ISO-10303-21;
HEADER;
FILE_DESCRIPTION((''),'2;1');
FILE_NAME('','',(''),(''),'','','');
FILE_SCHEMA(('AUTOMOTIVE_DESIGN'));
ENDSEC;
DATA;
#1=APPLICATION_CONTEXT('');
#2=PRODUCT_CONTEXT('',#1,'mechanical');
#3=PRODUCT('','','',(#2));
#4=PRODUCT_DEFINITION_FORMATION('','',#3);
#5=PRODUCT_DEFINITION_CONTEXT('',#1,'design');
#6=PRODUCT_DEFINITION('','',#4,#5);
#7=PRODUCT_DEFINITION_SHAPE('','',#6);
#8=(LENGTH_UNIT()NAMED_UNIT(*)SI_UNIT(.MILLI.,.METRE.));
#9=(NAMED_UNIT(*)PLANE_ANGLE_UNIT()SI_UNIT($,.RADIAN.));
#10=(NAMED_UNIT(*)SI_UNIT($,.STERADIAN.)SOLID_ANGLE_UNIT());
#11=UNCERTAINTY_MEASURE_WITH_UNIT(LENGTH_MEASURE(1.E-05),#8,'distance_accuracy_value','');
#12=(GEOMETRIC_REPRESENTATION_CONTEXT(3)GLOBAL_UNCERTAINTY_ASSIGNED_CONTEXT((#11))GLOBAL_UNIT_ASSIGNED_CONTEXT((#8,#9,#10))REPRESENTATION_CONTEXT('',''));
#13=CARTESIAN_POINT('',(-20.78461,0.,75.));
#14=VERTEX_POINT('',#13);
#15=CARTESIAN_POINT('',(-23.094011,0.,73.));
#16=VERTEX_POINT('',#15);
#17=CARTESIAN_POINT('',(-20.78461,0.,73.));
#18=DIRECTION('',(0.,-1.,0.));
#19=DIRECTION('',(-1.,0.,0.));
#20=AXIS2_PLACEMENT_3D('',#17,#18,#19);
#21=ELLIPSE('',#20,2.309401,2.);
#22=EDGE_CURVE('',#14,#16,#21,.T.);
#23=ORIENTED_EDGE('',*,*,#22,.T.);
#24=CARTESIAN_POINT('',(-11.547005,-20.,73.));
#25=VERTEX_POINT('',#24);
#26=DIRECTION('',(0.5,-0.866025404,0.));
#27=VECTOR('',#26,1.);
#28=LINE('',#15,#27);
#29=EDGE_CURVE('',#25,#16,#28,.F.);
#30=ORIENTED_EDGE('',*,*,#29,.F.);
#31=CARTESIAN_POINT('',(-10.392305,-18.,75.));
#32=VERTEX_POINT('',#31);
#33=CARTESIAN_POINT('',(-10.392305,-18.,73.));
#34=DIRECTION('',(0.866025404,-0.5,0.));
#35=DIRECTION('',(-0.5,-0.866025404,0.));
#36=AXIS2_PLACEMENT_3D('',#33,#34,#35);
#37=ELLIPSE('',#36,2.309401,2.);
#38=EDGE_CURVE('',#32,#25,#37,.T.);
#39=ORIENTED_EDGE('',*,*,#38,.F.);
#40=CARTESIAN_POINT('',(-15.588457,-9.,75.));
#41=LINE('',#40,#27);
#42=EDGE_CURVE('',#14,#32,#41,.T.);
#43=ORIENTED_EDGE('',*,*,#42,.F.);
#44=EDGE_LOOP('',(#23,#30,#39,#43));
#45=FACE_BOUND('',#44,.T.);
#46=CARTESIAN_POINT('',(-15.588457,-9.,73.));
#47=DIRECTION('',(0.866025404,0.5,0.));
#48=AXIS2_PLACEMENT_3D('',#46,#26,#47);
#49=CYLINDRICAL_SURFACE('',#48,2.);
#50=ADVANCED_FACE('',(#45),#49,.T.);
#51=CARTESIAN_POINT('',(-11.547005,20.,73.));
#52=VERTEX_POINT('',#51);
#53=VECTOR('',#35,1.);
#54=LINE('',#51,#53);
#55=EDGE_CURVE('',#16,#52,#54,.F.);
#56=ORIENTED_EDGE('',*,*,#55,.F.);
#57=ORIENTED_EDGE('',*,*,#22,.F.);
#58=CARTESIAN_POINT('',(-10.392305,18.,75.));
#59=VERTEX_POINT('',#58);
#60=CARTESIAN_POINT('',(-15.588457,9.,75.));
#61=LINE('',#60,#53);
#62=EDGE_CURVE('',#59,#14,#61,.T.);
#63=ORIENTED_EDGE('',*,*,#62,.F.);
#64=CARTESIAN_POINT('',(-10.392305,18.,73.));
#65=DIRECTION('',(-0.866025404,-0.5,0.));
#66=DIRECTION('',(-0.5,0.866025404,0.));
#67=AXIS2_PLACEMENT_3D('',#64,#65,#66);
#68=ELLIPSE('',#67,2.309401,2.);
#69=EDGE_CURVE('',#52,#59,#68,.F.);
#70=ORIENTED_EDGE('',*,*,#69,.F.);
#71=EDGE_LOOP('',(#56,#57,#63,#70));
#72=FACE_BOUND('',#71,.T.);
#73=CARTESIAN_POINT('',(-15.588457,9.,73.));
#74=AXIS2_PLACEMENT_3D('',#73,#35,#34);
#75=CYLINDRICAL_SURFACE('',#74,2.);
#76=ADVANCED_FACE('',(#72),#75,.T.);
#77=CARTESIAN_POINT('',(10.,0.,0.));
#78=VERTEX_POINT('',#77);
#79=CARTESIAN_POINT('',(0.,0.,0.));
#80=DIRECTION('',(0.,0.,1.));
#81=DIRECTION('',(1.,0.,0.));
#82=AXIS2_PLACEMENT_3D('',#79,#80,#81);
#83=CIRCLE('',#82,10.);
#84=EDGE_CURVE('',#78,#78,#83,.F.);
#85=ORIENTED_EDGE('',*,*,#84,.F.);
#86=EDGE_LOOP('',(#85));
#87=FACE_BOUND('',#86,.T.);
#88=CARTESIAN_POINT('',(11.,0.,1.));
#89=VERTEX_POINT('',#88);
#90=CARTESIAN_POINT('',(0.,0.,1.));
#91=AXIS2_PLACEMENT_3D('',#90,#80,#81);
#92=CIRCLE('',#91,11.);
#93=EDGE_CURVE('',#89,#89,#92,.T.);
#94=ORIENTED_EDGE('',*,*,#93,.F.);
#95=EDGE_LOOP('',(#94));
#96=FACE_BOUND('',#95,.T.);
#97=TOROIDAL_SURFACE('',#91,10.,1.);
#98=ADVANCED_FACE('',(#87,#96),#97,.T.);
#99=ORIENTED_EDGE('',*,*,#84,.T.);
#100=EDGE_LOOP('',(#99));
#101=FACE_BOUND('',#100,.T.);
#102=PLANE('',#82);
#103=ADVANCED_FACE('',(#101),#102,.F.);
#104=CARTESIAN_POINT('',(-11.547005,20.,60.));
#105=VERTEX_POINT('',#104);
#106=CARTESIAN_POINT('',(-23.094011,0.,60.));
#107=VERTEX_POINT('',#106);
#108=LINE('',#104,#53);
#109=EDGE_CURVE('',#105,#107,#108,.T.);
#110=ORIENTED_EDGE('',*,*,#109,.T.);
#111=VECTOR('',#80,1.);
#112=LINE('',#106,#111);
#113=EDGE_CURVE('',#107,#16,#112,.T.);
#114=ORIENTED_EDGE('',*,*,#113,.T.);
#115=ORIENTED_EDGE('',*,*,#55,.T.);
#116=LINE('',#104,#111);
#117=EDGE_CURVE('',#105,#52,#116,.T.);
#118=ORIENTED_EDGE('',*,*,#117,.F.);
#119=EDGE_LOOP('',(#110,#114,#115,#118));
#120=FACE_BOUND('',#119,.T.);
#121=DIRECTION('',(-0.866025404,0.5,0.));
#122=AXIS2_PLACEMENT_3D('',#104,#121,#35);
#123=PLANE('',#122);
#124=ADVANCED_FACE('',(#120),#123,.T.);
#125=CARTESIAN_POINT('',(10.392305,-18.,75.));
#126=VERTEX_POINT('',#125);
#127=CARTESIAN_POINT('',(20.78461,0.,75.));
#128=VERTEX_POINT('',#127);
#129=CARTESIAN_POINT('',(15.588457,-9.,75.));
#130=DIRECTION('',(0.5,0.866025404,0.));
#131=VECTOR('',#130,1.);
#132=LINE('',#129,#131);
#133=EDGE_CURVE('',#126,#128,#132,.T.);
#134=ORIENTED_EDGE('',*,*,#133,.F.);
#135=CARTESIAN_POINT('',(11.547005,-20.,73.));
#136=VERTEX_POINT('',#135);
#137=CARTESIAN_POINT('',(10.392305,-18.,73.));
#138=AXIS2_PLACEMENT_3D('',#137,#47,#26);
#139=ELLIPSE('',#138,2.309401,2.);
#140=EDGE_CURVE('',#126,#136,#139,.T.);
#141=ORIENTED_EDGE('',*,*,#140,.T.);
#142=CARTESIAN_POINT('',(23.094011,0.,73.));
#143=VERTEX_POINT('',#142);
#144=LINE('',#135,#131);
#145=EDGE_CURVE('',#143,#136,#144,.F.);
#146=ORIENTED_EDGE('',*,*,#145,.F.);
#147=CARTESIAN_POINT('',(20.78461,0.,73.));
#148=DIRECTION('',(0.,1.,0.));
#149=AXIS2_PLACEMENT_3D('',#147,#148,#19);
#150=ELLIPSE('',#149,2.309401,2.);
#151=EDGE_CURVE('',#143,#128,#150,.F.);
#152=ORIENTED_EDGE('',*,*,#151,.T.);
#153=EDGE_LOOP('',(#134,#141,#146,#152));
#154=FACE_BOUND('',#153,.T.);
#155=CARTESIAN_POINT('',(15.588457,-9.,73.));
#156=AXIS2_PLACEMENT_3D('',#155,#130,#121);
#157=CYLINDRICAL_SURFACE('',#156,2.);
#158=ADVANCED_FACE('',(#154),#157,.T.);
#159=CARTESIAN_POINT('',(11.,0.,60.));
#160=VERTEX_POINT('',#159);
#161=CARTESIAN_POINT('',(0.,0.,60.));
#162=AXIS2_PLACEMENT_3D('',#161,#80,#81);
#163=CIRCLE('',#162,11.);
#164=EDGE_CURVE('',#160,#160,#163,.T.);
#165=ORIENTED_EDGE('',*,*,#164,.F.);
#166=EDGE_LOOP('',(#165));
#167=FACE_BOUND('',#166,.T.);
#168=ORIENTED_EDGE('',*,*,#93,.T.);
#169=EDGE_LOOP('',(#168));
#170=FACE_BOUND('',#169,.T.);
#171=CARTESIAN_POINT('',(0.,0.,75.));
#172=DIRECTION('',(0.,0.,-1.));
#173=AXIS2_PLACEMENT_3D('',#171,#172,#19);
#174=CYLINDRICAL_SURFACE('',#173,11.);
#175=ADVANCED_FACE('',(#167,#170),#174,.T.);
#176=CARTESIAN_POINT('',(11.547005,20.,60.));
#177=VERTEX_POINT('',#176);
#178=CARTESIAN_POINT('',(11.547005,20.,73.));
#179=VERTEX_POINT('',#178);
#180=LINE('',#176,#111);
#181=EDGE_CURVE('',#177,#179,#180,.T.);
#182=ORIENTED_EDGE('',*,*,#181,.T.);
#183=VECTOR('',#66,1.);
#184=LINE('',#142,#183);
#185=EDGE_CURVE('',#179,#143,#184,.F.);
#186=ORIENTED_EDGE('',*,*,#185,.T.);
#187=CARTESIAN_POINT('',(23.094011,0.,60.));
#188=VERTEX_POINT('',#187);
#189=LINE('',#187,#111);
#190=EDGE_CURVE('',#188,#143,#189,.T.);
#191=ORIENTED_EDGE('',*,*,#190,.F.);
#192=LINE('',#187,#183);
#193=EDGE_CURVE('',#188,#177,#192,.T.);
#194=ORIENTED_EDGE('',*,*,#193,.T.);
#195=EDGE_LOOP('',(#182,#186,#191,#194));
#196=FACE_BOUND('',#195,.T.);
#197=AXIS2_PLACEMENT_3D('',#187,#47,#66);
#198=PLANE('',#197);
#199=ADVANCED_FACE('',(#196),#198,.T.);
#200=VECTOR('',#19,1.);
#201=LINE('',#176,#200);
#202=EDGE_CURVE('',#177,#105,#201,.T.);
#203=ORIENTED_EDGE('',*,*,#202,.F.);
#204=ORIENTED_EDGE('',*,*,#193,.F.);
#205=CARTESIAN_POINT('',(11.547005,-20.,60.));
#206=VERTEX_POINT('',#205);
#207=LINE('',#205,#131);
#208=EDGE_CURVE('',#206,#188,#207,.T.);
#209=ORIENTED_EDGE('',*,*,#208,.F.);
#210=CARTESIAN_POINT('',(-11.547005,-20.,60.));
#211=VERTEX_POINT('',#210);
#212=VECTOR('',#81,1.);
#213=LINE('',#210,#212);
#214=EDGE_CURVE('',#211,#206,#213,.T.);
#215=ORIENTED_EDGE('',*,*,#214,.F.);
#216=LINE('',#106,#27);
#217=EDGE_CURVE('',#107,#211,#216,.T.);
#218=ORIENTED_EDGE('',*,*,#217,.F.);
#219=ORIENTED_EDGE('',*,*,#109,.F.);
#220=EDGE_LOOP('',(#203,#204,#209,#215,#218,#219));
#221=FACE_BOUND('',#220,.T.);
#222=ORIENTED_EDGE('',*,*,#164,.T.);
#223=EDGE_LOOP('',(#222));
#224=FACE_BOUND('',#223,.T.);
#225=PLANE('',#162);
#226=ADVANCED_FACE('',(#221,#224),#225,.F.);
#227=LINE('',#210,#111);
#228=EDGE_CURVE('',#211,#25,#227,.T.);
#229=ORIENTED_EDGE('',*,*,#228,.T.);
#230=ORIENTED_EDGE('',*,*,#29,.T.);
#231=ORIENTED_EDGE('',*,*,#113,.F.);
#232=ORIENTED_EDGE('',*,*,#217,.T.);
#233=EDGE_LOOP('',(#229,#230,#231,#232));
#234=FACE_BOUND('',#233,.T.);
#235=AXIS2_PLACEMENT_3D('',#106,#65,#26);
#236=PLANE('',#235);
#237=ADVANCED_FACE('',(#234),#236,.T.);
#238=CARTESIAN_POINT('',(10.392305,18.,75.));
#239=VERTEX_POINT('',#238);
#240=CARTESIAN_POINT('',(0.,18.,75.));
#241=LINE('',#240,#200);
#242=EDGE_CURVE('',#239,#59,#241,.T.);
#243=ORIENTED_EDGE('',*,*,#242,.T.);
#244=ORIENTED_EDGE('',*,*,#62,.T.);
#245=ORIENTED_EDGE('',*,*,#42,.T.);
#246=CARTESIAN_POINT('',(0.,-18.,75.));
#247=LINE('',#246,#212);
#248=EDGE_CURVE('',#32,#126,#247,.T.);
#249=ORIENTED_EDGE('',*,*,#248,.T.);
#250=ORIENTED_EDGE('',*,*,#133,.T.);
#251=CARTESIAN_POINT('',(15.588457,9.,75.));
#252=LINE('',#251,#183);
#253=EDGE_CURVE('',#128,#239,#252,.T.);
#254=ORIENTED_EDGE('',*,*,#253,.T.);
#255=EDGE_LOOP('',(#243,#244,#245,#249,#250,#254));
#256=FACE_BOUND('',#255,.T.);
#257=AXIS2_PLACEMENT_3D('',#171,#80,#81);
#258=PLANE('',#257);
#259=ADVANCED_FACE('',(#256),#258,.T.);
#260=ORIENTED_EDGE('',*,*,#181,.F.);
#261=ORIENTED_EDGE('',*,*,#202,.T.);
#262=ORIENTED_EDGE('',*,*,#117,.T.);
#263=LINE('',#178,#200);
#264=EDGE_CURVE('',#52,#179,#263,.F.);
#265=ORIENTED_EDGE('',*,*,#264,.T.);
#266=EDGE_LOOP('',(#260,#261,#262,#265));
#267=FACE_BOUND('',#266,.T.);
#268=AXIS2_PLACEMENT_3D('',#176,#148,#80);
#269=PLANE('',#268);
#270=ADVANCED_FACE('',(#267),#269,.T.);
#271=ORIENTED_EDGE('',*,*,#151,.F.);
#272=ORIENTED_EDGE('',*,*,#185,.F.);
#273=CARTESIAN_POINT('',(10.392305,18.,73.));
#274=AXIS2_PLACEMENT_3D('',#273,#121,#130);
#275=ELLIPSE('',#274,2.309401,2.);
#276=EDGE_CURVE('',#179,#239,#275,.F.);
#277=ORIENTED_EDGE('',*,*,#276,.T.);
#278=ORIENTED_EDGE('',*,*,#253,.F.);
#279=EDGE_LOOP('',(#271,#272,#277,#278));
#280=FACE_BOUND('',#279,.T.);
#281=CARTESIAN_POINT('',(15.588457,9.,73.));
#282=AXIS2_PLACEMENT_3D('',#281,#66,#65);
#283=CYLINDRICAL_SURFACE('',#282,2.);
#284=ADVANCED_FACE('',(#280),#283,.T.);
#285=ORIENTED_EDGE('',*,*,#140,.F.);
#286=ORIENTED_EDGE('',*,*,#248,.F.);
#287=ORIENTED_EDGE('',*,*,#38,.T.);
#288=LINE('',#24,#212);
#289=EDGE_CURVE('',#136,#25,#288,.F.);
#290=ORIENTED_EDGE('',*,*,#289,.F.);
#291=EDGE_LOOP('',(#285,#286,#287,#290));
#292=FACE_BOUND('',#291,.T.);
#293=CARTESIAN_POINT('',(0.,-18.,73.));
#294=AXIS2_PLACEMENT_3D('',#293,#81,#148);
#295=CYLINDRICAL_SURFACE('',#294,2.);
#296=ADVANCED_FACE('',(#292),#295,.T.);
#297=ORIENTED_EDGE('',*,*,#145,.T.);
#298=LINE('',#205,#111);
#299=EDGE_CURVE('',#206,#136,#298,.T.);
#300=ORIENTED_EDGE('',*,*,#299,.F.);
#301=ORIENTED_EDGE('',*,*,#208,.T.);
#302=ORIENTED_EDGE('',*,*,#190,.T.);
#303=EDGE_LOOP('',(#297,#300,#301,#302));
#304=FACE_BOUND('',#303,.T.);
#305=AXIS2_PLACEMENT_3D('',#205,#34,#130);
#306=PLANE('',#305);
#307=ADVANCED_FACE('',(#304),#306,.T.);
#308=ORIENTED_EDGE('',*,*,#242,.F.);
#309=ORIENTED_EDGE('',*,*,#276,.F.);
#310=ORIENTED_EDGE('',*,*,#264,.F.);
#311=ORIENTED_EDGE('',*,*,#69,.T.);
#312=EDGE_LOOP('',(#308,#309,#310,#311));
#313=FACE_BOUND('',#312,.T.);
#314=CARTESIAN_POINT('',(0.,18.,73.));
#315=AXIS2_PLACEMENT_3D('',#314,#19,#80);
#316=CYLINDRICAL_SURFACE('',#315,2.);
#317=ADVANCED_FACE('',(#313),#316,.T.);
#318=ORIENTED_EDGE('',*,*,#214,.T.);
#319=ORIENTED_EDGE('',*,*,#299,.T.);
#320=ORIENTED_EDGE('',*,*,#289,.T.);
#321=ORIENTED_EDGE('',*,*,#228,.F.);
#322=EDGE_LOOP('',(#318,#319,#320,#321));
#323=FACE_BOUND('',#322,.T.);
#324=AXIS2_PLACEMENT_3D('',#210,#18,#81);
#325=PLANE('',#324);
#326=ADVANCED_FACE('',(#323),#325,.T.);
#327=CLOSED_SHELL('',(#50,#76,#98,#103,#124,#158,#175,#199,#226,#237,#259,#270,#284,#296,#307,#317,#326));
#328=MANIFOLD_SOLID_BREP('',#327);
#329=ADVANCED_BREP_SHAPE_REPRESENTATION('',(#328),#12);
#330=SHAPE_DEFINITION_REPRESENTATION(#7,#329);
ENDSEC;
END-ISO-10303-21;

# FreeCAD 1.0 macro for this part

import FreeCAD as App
import Part
import Sketcher
Q = App.Units.Quantity


def edges_at(feature, points):
    """Names of the edges that pass closest to the given points."""
    edges = feature.Shape.Edges
    near = lambda p: min(range(len(edges)), key=lambda i: edges[i].distToShape(Part.Vertex(*p))[0])
    return sorted({f"Edge{near(p) + 1}" for p in points})

doc = App.newDocument("Part")
body = doc.addObject("PartDesign::Body", "Body")

# Sketch on XY plane
sketch1 = doc.addObject("Sketcher::SketchObject", "Sketch")
body.addObject(sketch1)
sketch1.AttachmentSupport = (doc.XY_Plane, [""])
sketch1.MapMode = "FlatFace"
sketch1.addGeometry(Part.Circle(App.Vector(0, 0, 0), App.Vector(0, 0, 1), 11), False)
sketch1.addConstraint(Sketcher.Constraint("Coincident", 0, 3, -1, 1))
sketch1.addConstraint(Sketcher.Constraint("Diameter", 0, Q("22 mm")))
pad1 = doc.addObject("PartDesign::Pad", "Pad")
body.addObject(pad1)
pad1.Profile = sketch1
pad1.Length = 75

# Sketch on XY plane
sketch2 = doc.addObject("Sketcher::SketchObject", "Sketch001")
body.addObject(sketch2)
sketch2.AttachmentSupport = (doc.XY_Plane, [""])
sketch2.MapMode = "FlatFace"
sketch2.AttachmentOffset = App.Placement(App.Vector(0, 0, 75), App.Rotation())
sketch2.addGeometry(Part.LineSegment(App.Vector(12, -20, 0), App.Vector(23, 0, 0)), False)
sketch2.addGeometry(Part.LineSegment(App.Vector(23, 0, 0), App.Vector(12, 20, 0)), False)
sketch2.addGeometry(Part.LineSegment(App.Vector(12, 20, 0), App.Vector(-12, 20, 0)), False)
sketch2.addGeometry(Part.LineSegment(App.Vector(-12, 20, 0), App.Vector(-23, 0, 0)), False)
sketch2.addGeometry(Part.LineSegment(App.Vector(-23, 0, 0), App.Vector(-12, -20, 0)), False)
sketch2.addGeometry(Part.LineSegment(App.Vector(-12, -20, 0), App.Vector(12, -20, 0)), False)
sketch2.addConstraint(Sketcher.Constraint("Coincident", 0, 2, 1, 1))
sketch2.addConstraint(Sketcher.Constraint("Coincident", 1, 2, 2, 1))
sketch2.addConstraint(Sketcher.Constraint("Coincident", 2, 2, 3, 1))
sketch2.addConstraint(Sketcher.Constraint("Coincident", 3, 2, 4, 1))
sketch2.addConstraint(Sketcher.Constraint("Coincident", 4, 2, 5, 1))
sketch2.addConstraint(Sketcher.Constraint("Coincident", 5, 2, 0, 1))
sketch2.addConstraint(Sketcher.Constraint("Horizontal", 2))
sketch2.addConstraint(Sketcher.Constraint("Horizontal", 5))
sketch2.addConstraint(Sketcher.Constraint("Symmetric", 0, 2, 3, 2, -1, 1))
sketch2.addConstraint(Sketcher.Constraint("Symmetric", 1, 2, 4, 2, -1, 1))
sketch2.addConstraint(Sketcher.Constraint("PointOnObject", 0, 2, -1))
sketch2.addConstraint(Sketcher.Constraint("Parallel", 0, 3))
sketch2.addConstraint(Sketcher.Constraint("Vertical", 2, 2, 4, 2))
sketch2.addConstraint(Sketcher.Constraint("Angle", 0, Q("60 deg")))
sketch2.addConstraint(Sketcher.Constraint("DistanceY", -1, 1, 1, 2, Q("20 mm")))
sketch2.addConstraint(Sketcher.Constraint("DistanceX", 2, 2, 2, 1, Q("23.094011 mm")))
pad2 = doc.addObject("PartDesign::Pad", "Pad001")
body.addObject(pad2)
pad2.Profile = sketch2
pad2.Length = 15
pad2.Reversed = True
doc.recompute()

fillet = doc.addObject("PartDesign::Fillet", "Fillet")
body.addObject(fillet)
fillet.Base = (pad2, edges_at(pad2, [
    (0, -20, 75),
    (17.321, -10, 75),
    (17.321, 10, 75),
    (0, 20, 75),
    (-17.321, 10, 75),
    (-17.321, -10, 75),
]))
fillet.Radius = 2
doc.recompute()

fillet2 = doc.addObject("PartDesign::Fillet", "Fillet001")
body.addObject(fillet2)
fillet2.Base = (fillet, edges_at(fillet, [(-11, 0, 0)]))
fillet2.Radius = 1

doc.recompute()
